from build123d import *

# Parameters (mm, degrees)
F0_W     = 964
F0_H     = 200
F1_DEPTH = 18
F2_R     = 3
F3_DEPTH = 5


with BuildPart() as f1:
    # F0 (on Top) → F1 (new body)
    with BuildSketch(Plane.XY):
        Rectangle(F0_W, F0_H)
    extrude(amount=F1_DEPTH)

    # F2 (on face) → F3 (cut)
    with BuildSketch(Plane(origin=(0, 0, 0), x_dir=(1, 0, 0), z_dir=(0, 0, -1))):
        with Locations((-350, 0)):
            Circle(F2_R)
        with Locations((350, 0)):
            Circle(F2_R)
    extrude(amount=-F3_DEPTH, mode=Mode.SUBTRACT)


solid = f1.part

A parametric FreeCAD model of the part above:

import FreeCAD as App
import Part
import Sketcher
Q = App.Units.Quantity


def add_polygon(sketch, points):
    """Adds a closed chain of lines whose ends are joined by coincident constraints."""
    first, n = sketch.GeometryCount, len(points)
    for a, b in zip(points, points[1:] + points[:1]):
        sketch.addGeometry(Part.LineSegment(App.Vector(*a, 0), App.Vector(*b, 0)), False)
    for i in range(n):
        sketch.addConstraint(Sketcher.Constraint("Coincident", first + i, 2, first + (i + 1) % n, 1))

doc = App.newDocument("Part")
params = doc.addObject("Spreadsheet::Sheet", "Params")
for row, (alias, value) in enumerate([
    ("sketch1_width", "964 mm"),
    ("sketch1_height", "200 mm"),
    ("pad1_length", "18 mm"),
    ("sketch2_diameter", "6 mm"),
    ("pocket1_length", "5 mm"),
], start=1):
    params.set(f"A{row}", alias)
    params.set(f"B{row}", "=" + value)
    params.setAlias(f"B{row}", alias)

body = doc.addObject("PartDesign::Body", "Body")

sketch1 = body.newObject("Sketcher::SketchObject", "Sketch")
sketch1.AttachmentSupport = (doc.getObject("XY_Plane"), [""])
sketch1.MapMode = "FlatFace"
add_polygon(sketch1, [(-482, 100), (-482, -100), (482, -100), (482, 100)])
sketch1.addConstraint([
    Sketcher.Constraint("Vertical", 0),
    Sketcher.Constraint("Horizontal", 1),
    Sketcher.Constraint("Vertical", 2),
    Sketcher.Constraint("Horizontal", 3),
    Sketcher.Constraint("Symmetric", 0, 2, 2, 2, -1, 1),
    Sketcher.Constraint("DistanceX", 1, 1, 1, 2, Q("964 mm")),
    Sketcher.Constraint("DistanceY", 0, 2, 0, 1, Q("200 mm")),
])
sketch1.setExpression("Constraints[9]", "Params.sketch1_width")
sketch1.setExpression("Constraints[10]", "Params.sketch1_height")
pad1 = body.newObject("PartDesign::Pad", "Pad")
pad1.Profile = sketch1
pad1.setExpression("Length", "Params.pad1_length")

sketch2 = body.newObject("Sketcher::SketchObject", "Sketch001")
sketch2.AttachmentSupport = (doc.getObject("XY_Plane"), [""])
sketch2.MapMode = "FlatFace"
sketch2.addGeometry([
    Part.Circle(App.Vector(-350, 0, 0), App.Vector(0, 0, 1), 3),
    Part.Circle(App.Vector(350, 0, 0), App.Vector(0, 0, 1), 3),
], False)
sketch2.addConstraint([
    Sketcher.Constraint("Equal", 0, 1),
    Sketcher.Constraint("Symmetric", 0, 3, 1, 3, -1, 1),
    Sketcher.Constraint("PointOnObject", 0, 3, -1),
    Sketcher.Constraint("Diameter", 0, Q("6 mm")),
    Sketcher.Constraint("DistanceX", 0, 3, -1, 1, Q("350 mm")),
])
sketch2.setExpression("Constraints[3]", "Params.sketch2_diameter")
pocket1 = body.newObject("PartDesign::Pocket", "Pocket")
pocket1.Profile = sketch2
pocket1.setExpression("Length", "Params.pocket1_length")
pocket1.Reversed = True

doc.recompute()
